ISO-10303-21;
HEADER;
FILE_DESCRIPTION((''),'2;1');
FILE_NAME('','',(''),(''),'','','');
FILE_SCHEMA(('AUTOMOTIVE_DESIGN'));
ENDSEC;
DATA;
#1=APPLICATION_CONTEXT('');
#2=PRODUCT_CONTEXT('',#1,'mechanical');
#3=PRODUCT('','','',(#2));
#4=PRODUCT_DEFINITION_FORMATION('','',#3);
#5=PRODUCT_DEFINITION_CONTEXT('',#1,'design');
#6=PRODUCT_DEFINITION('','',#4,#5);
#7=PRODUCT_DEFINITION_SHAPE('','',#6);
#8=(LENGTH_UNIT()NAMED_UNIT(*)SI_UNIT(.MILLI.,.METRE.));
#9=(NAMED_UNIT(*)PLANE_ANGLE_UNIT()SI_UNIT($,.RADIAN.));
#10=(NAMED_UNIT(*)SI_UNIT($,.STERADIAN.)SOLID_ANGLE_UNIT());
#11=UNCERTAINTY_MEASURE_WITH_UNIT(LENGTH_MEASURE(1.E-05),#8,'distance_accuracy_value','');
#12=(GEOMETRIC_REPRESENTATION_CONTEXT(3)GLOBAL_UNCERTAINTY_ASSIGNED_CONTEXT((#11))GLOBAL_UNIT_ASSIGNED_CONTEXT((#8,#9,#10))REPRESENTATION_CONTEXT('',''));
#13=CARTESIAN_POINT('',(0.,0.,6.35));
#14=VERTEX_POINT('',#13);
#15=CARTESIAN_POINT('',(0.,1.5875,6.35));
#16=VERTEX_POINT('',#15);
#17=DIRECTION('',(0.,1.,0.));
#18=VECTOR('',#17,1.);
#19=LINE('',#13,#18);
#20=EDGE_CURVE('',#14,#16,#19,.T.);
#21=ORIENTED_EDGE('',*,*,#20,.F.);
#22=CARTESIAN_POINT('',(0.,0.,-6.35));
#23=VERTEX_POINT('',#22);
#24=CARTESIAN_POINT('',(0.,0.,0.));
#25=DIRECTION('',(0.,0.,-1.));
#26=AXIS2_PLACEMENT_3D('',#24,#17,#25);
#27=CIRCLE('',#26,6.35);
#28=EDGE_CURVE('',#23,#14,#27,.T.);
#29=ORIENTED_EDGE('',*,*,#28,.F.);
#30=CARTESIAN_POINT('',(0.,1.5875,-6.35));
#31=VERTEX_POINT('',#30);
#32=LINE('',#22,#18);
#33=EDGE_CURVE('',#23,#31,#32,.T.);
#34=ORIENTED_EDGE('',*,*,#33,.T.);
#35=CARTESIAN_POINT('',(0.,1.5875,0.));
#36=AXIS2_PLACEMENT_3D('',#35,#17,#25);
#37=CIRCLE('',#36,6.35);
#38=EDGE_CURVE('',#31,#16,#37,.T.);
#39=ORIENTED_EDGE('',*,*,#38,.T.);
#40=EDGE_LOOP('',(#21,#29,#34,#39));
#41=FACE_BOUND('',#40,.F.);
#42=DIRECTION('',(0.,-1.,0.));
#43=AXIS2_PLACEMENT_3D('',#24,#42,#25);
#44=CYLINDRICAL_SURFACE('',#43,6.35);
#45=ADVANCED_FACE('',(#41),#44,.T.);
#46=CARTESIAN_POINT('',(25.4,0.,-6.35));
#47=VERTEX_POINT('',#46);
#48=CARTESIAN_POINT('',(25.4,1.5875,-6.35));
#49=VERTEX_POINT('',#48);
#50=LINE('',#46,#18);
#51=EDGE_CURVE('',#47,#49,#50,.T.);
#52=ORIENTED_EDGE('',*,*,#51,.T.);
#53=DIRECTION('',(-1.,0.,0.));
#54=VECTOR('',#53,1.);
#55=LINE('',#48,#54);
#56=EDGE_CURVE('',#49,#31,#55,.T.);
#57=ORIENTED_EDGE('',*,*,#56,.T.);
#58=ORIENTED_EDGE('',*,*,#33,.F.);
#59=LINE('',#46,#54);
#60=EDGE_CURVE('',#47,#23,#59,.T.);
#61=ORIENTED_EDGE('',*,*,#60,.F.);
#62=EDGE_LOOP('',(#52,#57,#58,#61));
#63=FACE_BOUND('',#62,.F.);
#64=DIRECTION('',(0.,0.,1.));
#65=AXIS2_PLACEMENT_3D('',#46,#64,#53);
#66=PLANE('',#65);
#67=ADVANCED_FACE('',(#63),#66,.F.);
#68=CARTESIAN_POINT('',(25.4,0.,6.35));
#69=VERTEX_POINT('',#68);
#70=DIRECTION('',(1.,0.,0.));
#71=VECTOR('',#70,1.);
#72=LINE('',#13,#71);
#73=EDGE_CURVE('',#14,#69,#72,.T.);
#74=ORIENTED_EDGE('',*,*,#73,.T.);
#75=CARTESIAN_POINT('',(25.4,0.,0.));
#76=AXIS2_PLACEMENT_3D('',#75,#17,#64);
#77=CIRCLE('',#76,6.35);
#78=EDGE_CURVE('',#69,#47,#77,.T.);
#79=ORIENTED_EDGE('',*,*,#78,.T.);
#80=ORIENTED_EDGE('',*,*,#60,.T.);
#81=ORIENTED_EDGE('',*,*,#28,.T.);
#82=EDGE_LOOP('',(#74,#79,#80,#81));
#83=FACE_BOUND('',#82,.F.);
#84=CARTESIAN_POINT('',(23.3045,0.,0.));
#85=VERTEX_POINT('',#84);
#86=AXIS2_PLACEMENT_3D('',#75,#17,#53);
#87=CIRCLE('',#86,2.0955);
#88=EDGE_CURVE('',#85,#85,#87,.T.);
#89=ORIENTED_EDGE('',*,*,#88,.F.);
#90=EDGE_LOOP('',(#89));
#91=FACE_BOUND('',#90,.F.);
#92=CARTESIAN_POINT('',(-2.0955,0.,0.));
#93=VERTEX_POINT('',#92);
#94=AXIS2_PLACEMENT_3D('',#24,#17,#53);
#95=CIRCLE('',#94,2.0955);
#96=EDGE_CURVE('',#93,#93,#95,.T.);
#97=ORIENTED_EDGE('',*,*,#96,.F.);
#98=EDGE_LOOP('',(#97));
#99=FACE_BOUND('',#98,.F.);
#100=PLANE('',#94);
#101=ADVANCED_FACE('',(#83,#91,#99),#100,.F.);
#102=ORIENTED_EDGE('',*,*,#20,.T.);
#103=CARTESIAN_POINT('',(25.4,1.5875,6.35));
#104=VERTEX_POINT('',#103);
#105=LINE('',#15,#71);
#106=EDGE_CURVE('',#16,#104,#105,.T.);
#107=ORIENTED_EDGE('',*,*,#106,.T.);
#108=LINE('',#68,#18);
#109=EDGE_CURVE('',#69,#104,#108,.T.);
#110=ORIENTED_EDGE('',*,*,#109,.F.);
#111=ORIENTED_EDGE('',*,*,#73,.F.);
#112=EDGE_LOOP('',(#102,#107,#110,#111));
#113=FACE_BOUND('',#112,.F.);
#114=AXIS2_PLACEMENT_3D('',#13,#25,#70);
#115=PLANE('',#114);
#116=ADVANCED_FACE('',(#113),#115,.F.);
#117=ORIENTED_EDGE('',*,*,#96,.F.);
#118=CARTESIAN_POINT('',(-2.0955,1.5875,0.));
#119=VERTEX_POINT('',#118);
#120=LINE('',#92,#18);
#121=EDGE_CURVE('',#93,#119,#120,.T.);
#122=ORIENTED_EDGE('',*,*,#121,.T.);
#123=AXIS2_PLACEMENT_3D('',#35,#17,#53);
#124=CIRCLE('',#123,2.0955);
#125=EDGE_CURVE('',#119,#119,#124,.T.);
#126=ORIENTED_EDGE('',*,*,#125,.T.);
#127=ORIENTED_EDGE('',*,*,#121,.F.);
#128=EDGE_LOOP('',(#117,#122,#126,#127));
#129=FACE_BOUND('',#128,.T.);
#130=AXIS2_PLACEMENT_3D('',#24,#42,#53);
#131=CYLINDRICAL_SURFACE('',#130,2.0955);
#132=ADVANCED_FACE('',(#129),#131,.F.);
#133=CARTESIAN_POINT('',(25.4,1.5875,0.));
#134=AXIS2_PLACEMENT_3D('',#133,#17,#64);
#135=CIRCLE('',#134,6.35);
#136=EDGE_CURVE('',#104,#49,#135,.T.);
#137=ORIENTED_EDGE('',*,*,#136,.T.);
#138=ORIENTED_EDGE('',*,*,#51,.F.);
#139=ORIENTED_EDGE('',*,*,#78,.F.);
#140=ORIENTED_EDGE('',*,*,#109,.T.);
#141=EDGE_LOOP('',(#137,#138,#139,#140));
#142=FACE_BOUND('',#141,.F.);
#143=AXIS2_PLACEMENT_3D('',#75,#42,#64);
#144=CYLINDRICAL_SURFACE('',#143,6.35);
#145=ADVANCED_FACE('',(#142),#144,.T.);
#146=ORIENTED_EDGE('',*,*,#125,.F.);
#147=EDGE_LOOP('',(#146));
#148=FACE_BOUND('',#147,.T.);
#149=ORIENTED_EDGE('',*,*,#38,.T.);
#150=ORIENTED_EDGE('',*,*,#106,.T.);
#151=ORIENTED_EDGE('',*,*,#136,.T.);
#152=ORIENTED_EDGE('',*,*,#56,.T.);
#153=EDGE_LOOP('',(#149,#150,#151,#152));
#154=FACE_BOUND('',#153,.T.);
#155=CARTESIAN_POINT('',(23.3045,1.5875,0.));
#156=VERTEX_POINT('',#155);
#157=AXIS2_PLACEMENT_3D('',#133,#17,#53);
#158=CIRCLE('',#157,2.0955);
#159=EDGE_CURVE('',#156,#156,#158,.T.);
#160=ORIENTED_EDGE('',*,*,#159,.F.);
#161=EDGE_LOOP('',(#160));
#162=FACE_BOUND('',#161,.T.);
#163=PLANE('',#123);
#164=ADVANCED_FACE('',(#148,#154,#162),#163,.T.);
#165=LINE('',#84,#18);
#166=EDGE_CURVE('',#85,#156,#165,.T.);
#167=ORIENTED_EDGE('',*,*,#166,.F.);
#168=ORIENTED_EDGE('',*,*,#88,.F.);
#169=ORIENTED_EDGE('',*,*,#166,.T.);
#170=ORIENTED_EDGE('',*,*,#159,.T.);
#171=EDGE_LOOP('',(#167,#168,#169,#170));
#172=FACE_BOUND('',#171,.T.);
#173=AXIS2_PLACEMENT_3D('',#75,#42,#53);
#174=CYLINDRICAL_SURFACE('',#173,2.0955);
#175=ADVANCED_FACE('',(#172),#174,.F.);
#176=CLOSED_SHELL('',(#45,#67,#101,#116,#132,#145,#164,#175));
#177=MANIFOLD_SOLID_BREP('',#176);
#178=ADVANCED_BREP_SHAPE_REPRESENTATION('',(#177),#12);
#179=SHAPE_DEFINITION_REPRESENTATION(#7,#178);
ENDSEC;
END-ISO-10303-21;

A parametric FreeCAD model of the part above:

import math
import FreeCAD as App
import Part
import Sketcher
Q = App.Units.Quantity

doc = App.newDocument("Part")
body = doc.addObject("PartDesign::Body", "Body")

# Sketch on XZ plane
sketch1 = body.newObject("Sketcher::SketchObject", "Sketch")
sketch1.AttachmentSupport = (doc.getObject("XZ_Plane"), [""])
sketch1.MapMode = "FlatFace"
sketch1.addGeometry([
    Part.LineSegment(App.Vector(25.4, -6.35, 0), App.Vector(0, -6.35, 0)),  # 0
    Part.ArcOfCircle(Part.Circle(App.Vector(0, 0, 0), App.Vector(0, 0, 1), 6.35), math.radians(90), math.radians(270)),  # 1
    Part.LineSegment(App.Vector(0, 6.35, 0), App.Vector(25.4, 6.35, 0)),  # 2
    Part.ArcOfCircle(Part.Circle(App.Vector(25.4, 0, 0), App.Vector(0, 0, 1), 6.35), math.radians(-90), math.radians(90)),  # 3
    Part.Circle(App.Vector(25.4, 0, 0), App.Vector(0, 0, 1), 2.0955),  # 4
    Part.Circle(App.Vector(0, 0, 0), App.Vector(0, 0, 1), 2.0955),  # 5
], False)
sketch1.addConstraint([
    Sketcher.Constraint("Tangent", 0, 2, 1, 2),
    Sketcher.Constraint("Tangent", 1, 1, 2, 1),
    Sketcher.Constraint("Tangent", 2, 2, 3, 2),
    Sketcher.Constraint("Tangent", 3, 1, 0, 1),
    Sketcher.Constraint("Horizontal", 0),
    Sketcher.Constraint("Horizontal", 2),
    Sketcher.Constraint("Coincident", 1, 3, -1, 1),
    Sketcher.Constraint("Coincident", 5, 3, -1, 1),
    Sketcher.Constraint("Coincident", 4, 3, 3, 3),
    Sketcher.Constraint("Equal", 4, 5),
    Sketcher.Constraint("Radius", 1, Q("0.25 in")),
    Sketcher.Constraint("Diameter", 4, Q("0.165 in")),
    Sketcher.Constraint("DistanceX", 0, 2, 0, 1, Q("1 in")),
])
pad1 = body.newObject("PartDesign::Pad", "Pad")
pad1.Profile = sketch1
pad1.Length = Q("0.0625 in")
pad1.Reversed = True

doc.recompute()
